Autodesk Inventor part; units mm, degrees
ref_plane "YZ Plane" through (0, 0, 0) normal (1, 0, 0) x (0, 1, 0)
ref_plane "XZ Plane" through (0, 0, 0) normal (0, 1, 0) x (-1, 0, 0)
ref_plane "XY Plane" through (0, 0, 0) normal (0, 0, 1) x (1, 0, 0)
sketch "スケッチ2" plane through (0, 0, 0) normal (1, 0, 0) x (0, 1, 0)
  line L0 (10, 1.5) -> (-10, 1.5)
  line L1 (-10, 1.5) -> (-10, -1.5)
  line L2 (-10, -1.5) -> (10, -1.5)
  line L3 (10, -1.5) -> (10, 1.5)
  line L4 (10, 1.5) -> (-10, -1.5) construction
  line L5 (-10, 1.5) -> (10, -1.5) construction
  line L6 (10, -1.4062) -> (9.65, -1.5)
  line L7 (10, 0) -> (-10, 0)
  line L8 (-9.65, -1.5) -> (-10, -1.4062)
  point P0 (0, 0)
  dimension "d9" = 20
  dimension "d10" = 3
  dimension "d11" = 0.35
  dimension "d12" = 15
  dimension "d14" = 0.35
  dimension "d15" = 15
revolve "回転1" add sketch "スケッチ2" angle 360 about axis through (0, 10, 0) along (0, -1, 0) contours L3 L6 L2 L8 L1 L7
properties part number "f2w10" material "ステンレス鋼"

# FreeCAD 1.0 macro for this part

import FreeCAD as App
import Part
import Sketcher
from FreeCAD import Vector
Q = App.Units.Quantity


def add_polygon(sketch, points):
    """Adds a closed chain of lines whose ends are joined by coincident constraints."""
    first, n = sketch.GeometryCount, len(points)
    for a, b in zip(points, points[1:] + points[:1]):
        sketch.addGeometry(Part.LineSegment(App.Vector(*a, 0), App.Vector(*b, 0)), False)
    for i in range(n):
        sketch.addConstraint(Sketcher.Constraint("Coincident", first + i, 2, first + (i + 1) % n, 1))

doc = App.newDocument("Part")
params = doc.addObject("Spreadsheet::Sheet", "Params")
for row, (alias, value) in enumerate([
    ("sketch1_width", "20 mm"),
    ("revolution_angle", "360 deg"),
], start=1):
    params.set(f"A{row}", alias)
    params.set(f"B{row}", "=" + value)
    params.setAlias(f"B{row}", alias)

body = doc.addObject("PartDesign::Body", "Body")

# Sketch on YZ plane
sketch1 = body.newObject("Sketcher::SketchObject", "Sketch")
sketch1.AttachmentSupport = (doc.getObject("YZ_Plane"), [""])
sketch1.MapMode = "FlatFace"
add_polygon(sketch1, [(10, -1.41), (10, 0), (-10, 0), (-10, -1.41), (-9.65, -1.5), (9.65, -1.5)])  # lines 0-5
sketch1.addConstraint(Sketcher.Constraint("Vertical", 0))
sketch1.addConstraint(Sketcher.Constraint("Horizontal", 1))
sketch1.addConstraint(Sketcher.Constraint("Vertical", 2))
sketch1.addConstraint(Sketcher.Constraint("Horizontal", 4))
sketch1.addConstraint(Sketcher.Constraint("Symmetric", 0, 2, 1, 2, -1, 1))
sketch1.addConstraint(Sketcher.Constraint("Horizontal", 2, 2, 5, 2))
sketch1.addConstraint(Sketcher.Constraint("Equal", 3, 5))
sketch1.addConstraint(Sketcher.Constraint("DistanceX", 1, 2, 1, 1, Q("20 mm")))
sketch1.addConstraint(Sketcher.Constraint("DistanceX", 2, 2, 3, 2, Q("0.35 mm")))
sketch1.addConstraint(Sketcher.Constraint("DistanceY", 3, 2, -1, 1, Q("1.5 mm")))
sketch1.addConstraint(Sketcher.Constraint("DistanceY", 0, 1, 0, 2, Q("1.4062 mm")))
sketch1.setExpression("Constraints[13]", "Params.sketch1_width")
revolution = body.newObject("PartDesign::Revolution", "Revolution")
revolution.Profile = sketch1
revolution.ReferenceAxis = (sketch1, ["H_Axis"])
revolution.setExpression("Angle", "Params.revolution_angle")

doc.recompute()
